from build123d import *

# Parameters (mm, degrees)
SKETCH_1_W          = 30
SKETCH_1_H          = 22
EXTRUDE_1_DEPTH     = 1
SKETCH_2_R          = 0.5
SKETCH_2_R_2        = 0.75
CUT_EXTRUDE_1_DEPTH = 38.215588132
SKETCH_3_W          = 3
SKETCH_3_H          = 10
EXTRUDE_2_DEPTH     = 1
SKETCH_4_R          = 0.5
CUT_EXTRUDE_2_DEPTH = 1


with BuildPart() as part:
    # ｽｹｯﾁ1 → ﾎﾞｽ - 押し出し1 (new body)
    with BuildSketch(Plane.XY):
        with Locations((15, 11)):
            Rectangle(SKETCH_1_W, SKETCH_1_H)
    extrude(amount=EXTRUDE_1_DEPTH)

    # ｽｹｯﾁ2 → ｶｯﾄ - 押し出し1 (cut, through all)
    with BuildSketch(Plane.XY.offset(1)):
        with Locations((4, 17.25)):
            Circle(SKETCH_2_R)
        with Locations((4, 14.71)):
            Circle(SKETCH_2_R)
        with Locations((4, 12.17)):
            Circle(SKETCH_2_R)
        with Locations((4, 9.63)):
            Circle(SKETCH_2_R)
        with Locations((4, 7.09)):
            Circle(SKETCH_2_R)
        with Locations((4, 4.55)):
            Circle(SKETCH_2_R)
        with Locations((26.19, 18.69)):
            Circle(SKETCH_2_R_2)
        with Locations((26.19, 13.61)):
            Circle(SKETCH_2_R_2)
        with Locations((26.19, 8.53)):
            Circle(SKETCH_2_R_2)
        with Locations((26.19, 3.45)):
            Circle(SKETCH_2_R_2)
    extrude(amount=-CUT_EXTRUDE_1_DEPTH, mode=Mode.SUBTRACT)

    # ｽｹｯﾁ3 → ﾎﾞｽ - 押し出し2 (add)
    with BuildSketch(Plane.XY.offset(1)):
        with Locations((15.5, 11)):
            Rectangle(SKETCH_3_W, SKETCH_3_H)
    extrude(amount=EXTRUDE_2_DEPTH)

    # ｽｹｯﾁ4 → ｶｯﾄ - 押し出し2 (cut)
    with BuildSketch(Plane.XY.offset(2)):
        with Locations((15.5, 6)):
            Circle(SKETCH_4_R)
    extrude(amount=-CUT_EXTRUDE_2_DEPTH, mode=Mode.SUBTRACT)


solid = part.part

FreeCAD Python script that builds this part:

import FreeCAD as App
import Part
import Sketcher

V = App.Vector

doc = App.newDocument("Part")
params = doc.addObject("Spreadsheet::Sheet", "Params")
for row, (alias, value) in enumerate([
    ("sketch1_width", "30 mm"),
    ("sketch1_height", "22 mm"),
    ("pad1_length", "1 mm"),
    ("sketch2_diameter", "1 mm"),
    ("sketch2_diameter2", "1.5 mm"),
    ("sketch3_width", "3 mm"),
    ("sketch3_height", "10 mm"),
    ("pad2_length", "1 mm"),
    ("sketch4_diameter", "1 mm"),
    ("pocket2_length", "1 mm"),
], start=1):
    params.set(f"A{row}", alias)
    params.set(f"B{row}", "=" + value)
    params.setAlias(f"B{row}", alias)

body = doc.addObject("PartDesign::Body", "Body")

# Sketch on XY plane
sketch1 = body.newObject("Sketcher::SketchObject", "Sketch")
sketch1.AttachmentSupport = (doc.getObject("XY_Plane"), [""])
sketch1.MapMode = "FlatFace"
sketch1.addGeometry(Part.LineSegment(V(0, 22, 0), V(0, 0, 0)), False)
sketch1.addGeometry(Part.LineSegment(V(0, 0, 0), V(30, 0, 0)), False)
sketch1.addGeometry(Part.LineSegment(V(30, 0, 0), V(30, 22, 0)), False)
sketch1.addGeometry(Part.LineSegment(V(30, 22, 0), V(0, 22, 0)), False)
sketch1.addConstraint(Sketcher.Constraint("Coincident", 0, 2, 1, 1))
sketch1.addConstraint(Sketcher.Constraint("Coincident", 1, 2, 2, 1))
sketch1.addConstraint(Sketcher.Constraint("Coincident", 2, 2, 3, 1))
sketch1.addConstraint(Sketcher.Constraint("Coincident", 3, 2, 0, 1))
sketch1.addConstraint(Sketcher.Constraint("Vertical", 0))
sketch1.addConstraint(Sketcher.Constraint("Horizontal", 1))
sketch1.addConstraint(Sketcher.Constraint("Vertical", 2))
sketch1.addConstraint(Sketcher.Constraint("Horizontal", 3))
sketch1.addConstraint(Sketcher.Constraint("Coincident", 0, 2, -1, 1))
sketch1.addConstraint(Sketcher.Constraint("DistanceX", 1, 1, 1, 2, 30.0))
sketch1.addConstraint(Sketcher.Constraint("DistanceY", 0, 2, 0, 1, 22.0))
sketch1.setExpression("Constraints[9]", "Params.sketch1_width")
sketch1.setExpression("Constraints[10]", "Params.sketch1_height")
pad1 = body.newObject("PartDesign::Pad", "Pad")
pad1.Profile = sketch1
pad1.setExpression("Length", "Params.pad1_length")

# Sketch on XY plane
sketch2 = body.newObject("Sketcher::SketchObject", "Sketch001")
sketch2.AttachmentSupport = (doc.getObject("XY_Plane"), [""])
sketch2.MapMode = "FlatFace"
sketch2.AttachmentOffset = App.Placement(V(0, 0, 1), App.Rotation())
sketch2.addGeometry(Part.Circle(V(4, 17.2, 0), V(0, 0, 1), 0.5), False)
sketch2.addGeometry(Part.Circle(V(4, 14.7, 0), V(0, 0, 1), 0.5), False)
sketch2.addGeometry(Part.Circle(V(4, 12.2, 0), V(0, 0, 1), 0.5), False)
sketch2.addGeometry(Part.Circle(V(4, 9.6, 0), V(0, 0, 1), 0.5), False)
sketch2.addGeometry(Part.Circle(V(4, 7.1, 0), V(0, 0, 1), 0.5), False)
sketch2.addGeometry(Part.Circle(V(4, 4.5, 0), V(0, 0, 1), 0.5), False)
sketch2.addGeometry(Part.Circle(V(26.2, 18.7, 0), V(0, 0, 1), 0.8), False)
sketch2.addGeometry(Part.Circle(V(26.2, 13.6, 0), V(0, 0, 1), 0.8), False)
sketch2.addGeometry(Part.Circle(V(26.2, 8.5, 0), V(0, 0, 1), 0.8), False)
sketch2.addGeometry(Part.Circle(V(26.2, 3.5, 0), V(0, 0, 1), 0.8), False)
sketch2.addConstraint(Sketcher.Constraint("Equal", 0, 1))
sketch2.addConstraint(Sketcher.Constraint("Equal", 1, 2))
sketch2.addConstraint(Sketcher.Constraint("Equal", 2, 3))
sketch2.addConstraint(Sketcher.Constraint("Equal", 3, 4))
sketch2.addConstraint(Sketcher.Constraint("Equal", 4, 5))
sketch2.addConstraint(Sketcher.Constraint("Equal", 6, 7))
sketch2.addConstraint(Sketcher.Constraint("Equal", 7, 8))
sketch2.addConstraint(Sketcher.Constraint("Equal", 8, 9))
sketch2.addConstraint(Sketcher.Constraint("Vertical", 0, 3, 1, 3))
sketch2.addConstraint(Sketcher.Constraint("Vertical", 1, 3, 2, 3))
sketch2.addConstraint(Sketcher.Constraint("Vertical", 2, 3, 3, 3))
sketch2.addConstraint(Sketcher.Constraint("Vertical", 3, 3, 4, 3))
sketch2.addConstraint(Sketcher.Constraint("Vertical", 4, 3, 5, 3))
sketch2.addConstraint(Sketcher.Constraint("Vertical", 6, 3, 7, 3))
sketch2.addConstraint(Sketcher.Constraint("Vertical", 7, 3, 8, 3))
sketch2.addConstraint(Sketcher.Constraint("Vertical", 8, 3, 9, 3))
sketch2.addConstraint(Sketcher.Constraint("Diameter", 0, 1.0))
sketch2.addConstraint(Sketcher.Constraint("Diameter", 6, 1.5))
sketch2.addConstraint(Sketcher.Constraint("DistanceX", -1, 1, 0, 3, 4.0))
sketch2.addConstraint(Sketcher.Constraint("DistanceY", 5, 3, 0, 3, 12.7))
sketch2.addConstraint(Sketcher.Constraint("DistanceY", 4, 3, 6, 3, 11.6))
sketch2.addConstraint(Sketcher.Constraint("DistanceY", 7, 3, 1, 3, 1.1))
sketch2.addConstraint(Sketcher.Constraint("DistanceY", 8, 3, 3, 3, 1.1))
sketch2.addConstraint(Sketcher.Constraint("DistanceY", 9, 3, 5, 3, 1.1))
sketch2.addConstraint(Sketcher.Constraint("DistanceY", -1, 1, 0, 3, 17.25))
sketch2.addConstraint(Sketcher.Constraint("DistanceY", -1, 1, 1, 3, 14.71))
sketch2.addConstraint(Sketcher.Constraint("DistanceY", -1, 1, 2, 3, 12.17))
sketch2.addConstraint(Sketcher.Constraint("DistanceY", -1, 1, 3, 3, 9.63))
sketch2.addConstraint(Sketcher.Constraint("DistanceY", -1, 1, 4, 3, 7.09))
sketch2.addConstraint(Sketcher.Constraint("DistanceX", -1, 1, 6, 3, 26.19))
sketch2.setExpression("Constraints[16]", "Params.sketch2_diameter")
sketch2.setExpression("Constraints[17]", "Params.sketch2_diameter2")
pocket1 = body.newObject("PartDesign::Pocket", "Pocket")
pocket1.Profile = sketch2
pocket1.Type = "ThroughAll"

# Sketch on XY plane
sketch3 = body.newObject("Sketcher::SketchObject", "Sketch002")
sketch3.AttachmentSupport = (doc.getObject("XY_Plane"), [""])
sketch3.MapMode = "FlatFace"
sketch3.AttachmentOffset = App.Placement(V(0, 0, 1), App.Rotation())
sketch3.addGeometry(Part.LineSegment(V(14, 16, 0), V(14, 6, 0)), False)
sketch3.addGeometry(Part.LineSegment(V(14, 6, 0), V(17, 6, 0)), False)
sketch3.addGeometry(Part.LineSegment(V(17, 6, 0), V(17, 16, 0)), False)
sketch3.addGeometry(Part.LineSegment(V(17, 16, 0), V(14, 16, 0)), False)
sketch3.addConstraint(Sketcher.Constraint("Coincident", 0, 2, 1, 1))
sketch3.addConstraint(Sketcher.Constraint("Coincident", 1, 2, 2, 1))
sketch3.addConstraint(Sketcher.Constraint("Coincident", 2, 2, 3, 1))
sketch3.addConstraint(Sketcher.Constraint("Coincident", 3, 2, 0, 1))
sketch3.addConstraint(Sketcher.Constraint("Vertical", 0))
sketch3.addConstraint(Sketcher.Constraint("Horizontal", 1))
sketch3.addConstraint(Sketcher.Constraint("Vertical", 2))
sketch3.addConstraint(Sketcher.Constraint("Horizontal", 3))
sketch3.addConstraint(Sketcher.Constraint("DistanceX", 1, 1, 1, 2, 3.0))
sketch3.addConstraint(Sketcher.Constraint("DistanceY", 0, 2, 0, 1, 10.0))
sketch3.addConstraint(Sketcher.Constraint("DistanceX", -1, 1, 0, 2, 14.0))
sketch3.addConstraint(Sketcher.Constraint("DistanceY", -1, 1, 0, 2, 6.0))
sketch3.setExpression("Constraints[8]", "Params.sketch3_width")
sketch3.setExpression("Constraints[9]", "Params.sketch3_height")
pad2 = body.newObject("PartDesign::Pad", "Pad001")
pad2.Profile = sketch3
pad2.setExpression("Length", "Params.pad2_length")

# Sketch on XY plane
sketch4 = body.newObject("Sketcher::SketchObject", "Sketch003")
sketch4.AttachmentSupport = (doc.getObject("XY_Plane"), [""])
sketch4.MapMode = "FlatFace"
sketch4.AttachmentOffset = App.Placement(V(0, 0, 2), App.Rotation())
sketch4.addGeometry(Part.Circle(V(15.5, 6, 0), V(0, 0, 1), 0.5), False)
sketch4.addConstraint(Sketcher.Constraint("Diameter", 0, 1.0))
sketch4.addConstraint(Sketcher.Constraint("DistanceY", -1, 1, 0, 3, 6.0))
sketch4.addConstraint(Sketcher.Constraint("DistanceX", -1, 1, 0, 3, 15.5))
sketch4.setExpression("Constraints[0]", "Params.sketch4_diameter")
pocket2 = body.newObject("PartDesign::Pocket", "Pocket001")
pocket2.Profile = sketch4
pocket2.setExpression("Length", "Params.pocket2_length")

doc.recompute()
